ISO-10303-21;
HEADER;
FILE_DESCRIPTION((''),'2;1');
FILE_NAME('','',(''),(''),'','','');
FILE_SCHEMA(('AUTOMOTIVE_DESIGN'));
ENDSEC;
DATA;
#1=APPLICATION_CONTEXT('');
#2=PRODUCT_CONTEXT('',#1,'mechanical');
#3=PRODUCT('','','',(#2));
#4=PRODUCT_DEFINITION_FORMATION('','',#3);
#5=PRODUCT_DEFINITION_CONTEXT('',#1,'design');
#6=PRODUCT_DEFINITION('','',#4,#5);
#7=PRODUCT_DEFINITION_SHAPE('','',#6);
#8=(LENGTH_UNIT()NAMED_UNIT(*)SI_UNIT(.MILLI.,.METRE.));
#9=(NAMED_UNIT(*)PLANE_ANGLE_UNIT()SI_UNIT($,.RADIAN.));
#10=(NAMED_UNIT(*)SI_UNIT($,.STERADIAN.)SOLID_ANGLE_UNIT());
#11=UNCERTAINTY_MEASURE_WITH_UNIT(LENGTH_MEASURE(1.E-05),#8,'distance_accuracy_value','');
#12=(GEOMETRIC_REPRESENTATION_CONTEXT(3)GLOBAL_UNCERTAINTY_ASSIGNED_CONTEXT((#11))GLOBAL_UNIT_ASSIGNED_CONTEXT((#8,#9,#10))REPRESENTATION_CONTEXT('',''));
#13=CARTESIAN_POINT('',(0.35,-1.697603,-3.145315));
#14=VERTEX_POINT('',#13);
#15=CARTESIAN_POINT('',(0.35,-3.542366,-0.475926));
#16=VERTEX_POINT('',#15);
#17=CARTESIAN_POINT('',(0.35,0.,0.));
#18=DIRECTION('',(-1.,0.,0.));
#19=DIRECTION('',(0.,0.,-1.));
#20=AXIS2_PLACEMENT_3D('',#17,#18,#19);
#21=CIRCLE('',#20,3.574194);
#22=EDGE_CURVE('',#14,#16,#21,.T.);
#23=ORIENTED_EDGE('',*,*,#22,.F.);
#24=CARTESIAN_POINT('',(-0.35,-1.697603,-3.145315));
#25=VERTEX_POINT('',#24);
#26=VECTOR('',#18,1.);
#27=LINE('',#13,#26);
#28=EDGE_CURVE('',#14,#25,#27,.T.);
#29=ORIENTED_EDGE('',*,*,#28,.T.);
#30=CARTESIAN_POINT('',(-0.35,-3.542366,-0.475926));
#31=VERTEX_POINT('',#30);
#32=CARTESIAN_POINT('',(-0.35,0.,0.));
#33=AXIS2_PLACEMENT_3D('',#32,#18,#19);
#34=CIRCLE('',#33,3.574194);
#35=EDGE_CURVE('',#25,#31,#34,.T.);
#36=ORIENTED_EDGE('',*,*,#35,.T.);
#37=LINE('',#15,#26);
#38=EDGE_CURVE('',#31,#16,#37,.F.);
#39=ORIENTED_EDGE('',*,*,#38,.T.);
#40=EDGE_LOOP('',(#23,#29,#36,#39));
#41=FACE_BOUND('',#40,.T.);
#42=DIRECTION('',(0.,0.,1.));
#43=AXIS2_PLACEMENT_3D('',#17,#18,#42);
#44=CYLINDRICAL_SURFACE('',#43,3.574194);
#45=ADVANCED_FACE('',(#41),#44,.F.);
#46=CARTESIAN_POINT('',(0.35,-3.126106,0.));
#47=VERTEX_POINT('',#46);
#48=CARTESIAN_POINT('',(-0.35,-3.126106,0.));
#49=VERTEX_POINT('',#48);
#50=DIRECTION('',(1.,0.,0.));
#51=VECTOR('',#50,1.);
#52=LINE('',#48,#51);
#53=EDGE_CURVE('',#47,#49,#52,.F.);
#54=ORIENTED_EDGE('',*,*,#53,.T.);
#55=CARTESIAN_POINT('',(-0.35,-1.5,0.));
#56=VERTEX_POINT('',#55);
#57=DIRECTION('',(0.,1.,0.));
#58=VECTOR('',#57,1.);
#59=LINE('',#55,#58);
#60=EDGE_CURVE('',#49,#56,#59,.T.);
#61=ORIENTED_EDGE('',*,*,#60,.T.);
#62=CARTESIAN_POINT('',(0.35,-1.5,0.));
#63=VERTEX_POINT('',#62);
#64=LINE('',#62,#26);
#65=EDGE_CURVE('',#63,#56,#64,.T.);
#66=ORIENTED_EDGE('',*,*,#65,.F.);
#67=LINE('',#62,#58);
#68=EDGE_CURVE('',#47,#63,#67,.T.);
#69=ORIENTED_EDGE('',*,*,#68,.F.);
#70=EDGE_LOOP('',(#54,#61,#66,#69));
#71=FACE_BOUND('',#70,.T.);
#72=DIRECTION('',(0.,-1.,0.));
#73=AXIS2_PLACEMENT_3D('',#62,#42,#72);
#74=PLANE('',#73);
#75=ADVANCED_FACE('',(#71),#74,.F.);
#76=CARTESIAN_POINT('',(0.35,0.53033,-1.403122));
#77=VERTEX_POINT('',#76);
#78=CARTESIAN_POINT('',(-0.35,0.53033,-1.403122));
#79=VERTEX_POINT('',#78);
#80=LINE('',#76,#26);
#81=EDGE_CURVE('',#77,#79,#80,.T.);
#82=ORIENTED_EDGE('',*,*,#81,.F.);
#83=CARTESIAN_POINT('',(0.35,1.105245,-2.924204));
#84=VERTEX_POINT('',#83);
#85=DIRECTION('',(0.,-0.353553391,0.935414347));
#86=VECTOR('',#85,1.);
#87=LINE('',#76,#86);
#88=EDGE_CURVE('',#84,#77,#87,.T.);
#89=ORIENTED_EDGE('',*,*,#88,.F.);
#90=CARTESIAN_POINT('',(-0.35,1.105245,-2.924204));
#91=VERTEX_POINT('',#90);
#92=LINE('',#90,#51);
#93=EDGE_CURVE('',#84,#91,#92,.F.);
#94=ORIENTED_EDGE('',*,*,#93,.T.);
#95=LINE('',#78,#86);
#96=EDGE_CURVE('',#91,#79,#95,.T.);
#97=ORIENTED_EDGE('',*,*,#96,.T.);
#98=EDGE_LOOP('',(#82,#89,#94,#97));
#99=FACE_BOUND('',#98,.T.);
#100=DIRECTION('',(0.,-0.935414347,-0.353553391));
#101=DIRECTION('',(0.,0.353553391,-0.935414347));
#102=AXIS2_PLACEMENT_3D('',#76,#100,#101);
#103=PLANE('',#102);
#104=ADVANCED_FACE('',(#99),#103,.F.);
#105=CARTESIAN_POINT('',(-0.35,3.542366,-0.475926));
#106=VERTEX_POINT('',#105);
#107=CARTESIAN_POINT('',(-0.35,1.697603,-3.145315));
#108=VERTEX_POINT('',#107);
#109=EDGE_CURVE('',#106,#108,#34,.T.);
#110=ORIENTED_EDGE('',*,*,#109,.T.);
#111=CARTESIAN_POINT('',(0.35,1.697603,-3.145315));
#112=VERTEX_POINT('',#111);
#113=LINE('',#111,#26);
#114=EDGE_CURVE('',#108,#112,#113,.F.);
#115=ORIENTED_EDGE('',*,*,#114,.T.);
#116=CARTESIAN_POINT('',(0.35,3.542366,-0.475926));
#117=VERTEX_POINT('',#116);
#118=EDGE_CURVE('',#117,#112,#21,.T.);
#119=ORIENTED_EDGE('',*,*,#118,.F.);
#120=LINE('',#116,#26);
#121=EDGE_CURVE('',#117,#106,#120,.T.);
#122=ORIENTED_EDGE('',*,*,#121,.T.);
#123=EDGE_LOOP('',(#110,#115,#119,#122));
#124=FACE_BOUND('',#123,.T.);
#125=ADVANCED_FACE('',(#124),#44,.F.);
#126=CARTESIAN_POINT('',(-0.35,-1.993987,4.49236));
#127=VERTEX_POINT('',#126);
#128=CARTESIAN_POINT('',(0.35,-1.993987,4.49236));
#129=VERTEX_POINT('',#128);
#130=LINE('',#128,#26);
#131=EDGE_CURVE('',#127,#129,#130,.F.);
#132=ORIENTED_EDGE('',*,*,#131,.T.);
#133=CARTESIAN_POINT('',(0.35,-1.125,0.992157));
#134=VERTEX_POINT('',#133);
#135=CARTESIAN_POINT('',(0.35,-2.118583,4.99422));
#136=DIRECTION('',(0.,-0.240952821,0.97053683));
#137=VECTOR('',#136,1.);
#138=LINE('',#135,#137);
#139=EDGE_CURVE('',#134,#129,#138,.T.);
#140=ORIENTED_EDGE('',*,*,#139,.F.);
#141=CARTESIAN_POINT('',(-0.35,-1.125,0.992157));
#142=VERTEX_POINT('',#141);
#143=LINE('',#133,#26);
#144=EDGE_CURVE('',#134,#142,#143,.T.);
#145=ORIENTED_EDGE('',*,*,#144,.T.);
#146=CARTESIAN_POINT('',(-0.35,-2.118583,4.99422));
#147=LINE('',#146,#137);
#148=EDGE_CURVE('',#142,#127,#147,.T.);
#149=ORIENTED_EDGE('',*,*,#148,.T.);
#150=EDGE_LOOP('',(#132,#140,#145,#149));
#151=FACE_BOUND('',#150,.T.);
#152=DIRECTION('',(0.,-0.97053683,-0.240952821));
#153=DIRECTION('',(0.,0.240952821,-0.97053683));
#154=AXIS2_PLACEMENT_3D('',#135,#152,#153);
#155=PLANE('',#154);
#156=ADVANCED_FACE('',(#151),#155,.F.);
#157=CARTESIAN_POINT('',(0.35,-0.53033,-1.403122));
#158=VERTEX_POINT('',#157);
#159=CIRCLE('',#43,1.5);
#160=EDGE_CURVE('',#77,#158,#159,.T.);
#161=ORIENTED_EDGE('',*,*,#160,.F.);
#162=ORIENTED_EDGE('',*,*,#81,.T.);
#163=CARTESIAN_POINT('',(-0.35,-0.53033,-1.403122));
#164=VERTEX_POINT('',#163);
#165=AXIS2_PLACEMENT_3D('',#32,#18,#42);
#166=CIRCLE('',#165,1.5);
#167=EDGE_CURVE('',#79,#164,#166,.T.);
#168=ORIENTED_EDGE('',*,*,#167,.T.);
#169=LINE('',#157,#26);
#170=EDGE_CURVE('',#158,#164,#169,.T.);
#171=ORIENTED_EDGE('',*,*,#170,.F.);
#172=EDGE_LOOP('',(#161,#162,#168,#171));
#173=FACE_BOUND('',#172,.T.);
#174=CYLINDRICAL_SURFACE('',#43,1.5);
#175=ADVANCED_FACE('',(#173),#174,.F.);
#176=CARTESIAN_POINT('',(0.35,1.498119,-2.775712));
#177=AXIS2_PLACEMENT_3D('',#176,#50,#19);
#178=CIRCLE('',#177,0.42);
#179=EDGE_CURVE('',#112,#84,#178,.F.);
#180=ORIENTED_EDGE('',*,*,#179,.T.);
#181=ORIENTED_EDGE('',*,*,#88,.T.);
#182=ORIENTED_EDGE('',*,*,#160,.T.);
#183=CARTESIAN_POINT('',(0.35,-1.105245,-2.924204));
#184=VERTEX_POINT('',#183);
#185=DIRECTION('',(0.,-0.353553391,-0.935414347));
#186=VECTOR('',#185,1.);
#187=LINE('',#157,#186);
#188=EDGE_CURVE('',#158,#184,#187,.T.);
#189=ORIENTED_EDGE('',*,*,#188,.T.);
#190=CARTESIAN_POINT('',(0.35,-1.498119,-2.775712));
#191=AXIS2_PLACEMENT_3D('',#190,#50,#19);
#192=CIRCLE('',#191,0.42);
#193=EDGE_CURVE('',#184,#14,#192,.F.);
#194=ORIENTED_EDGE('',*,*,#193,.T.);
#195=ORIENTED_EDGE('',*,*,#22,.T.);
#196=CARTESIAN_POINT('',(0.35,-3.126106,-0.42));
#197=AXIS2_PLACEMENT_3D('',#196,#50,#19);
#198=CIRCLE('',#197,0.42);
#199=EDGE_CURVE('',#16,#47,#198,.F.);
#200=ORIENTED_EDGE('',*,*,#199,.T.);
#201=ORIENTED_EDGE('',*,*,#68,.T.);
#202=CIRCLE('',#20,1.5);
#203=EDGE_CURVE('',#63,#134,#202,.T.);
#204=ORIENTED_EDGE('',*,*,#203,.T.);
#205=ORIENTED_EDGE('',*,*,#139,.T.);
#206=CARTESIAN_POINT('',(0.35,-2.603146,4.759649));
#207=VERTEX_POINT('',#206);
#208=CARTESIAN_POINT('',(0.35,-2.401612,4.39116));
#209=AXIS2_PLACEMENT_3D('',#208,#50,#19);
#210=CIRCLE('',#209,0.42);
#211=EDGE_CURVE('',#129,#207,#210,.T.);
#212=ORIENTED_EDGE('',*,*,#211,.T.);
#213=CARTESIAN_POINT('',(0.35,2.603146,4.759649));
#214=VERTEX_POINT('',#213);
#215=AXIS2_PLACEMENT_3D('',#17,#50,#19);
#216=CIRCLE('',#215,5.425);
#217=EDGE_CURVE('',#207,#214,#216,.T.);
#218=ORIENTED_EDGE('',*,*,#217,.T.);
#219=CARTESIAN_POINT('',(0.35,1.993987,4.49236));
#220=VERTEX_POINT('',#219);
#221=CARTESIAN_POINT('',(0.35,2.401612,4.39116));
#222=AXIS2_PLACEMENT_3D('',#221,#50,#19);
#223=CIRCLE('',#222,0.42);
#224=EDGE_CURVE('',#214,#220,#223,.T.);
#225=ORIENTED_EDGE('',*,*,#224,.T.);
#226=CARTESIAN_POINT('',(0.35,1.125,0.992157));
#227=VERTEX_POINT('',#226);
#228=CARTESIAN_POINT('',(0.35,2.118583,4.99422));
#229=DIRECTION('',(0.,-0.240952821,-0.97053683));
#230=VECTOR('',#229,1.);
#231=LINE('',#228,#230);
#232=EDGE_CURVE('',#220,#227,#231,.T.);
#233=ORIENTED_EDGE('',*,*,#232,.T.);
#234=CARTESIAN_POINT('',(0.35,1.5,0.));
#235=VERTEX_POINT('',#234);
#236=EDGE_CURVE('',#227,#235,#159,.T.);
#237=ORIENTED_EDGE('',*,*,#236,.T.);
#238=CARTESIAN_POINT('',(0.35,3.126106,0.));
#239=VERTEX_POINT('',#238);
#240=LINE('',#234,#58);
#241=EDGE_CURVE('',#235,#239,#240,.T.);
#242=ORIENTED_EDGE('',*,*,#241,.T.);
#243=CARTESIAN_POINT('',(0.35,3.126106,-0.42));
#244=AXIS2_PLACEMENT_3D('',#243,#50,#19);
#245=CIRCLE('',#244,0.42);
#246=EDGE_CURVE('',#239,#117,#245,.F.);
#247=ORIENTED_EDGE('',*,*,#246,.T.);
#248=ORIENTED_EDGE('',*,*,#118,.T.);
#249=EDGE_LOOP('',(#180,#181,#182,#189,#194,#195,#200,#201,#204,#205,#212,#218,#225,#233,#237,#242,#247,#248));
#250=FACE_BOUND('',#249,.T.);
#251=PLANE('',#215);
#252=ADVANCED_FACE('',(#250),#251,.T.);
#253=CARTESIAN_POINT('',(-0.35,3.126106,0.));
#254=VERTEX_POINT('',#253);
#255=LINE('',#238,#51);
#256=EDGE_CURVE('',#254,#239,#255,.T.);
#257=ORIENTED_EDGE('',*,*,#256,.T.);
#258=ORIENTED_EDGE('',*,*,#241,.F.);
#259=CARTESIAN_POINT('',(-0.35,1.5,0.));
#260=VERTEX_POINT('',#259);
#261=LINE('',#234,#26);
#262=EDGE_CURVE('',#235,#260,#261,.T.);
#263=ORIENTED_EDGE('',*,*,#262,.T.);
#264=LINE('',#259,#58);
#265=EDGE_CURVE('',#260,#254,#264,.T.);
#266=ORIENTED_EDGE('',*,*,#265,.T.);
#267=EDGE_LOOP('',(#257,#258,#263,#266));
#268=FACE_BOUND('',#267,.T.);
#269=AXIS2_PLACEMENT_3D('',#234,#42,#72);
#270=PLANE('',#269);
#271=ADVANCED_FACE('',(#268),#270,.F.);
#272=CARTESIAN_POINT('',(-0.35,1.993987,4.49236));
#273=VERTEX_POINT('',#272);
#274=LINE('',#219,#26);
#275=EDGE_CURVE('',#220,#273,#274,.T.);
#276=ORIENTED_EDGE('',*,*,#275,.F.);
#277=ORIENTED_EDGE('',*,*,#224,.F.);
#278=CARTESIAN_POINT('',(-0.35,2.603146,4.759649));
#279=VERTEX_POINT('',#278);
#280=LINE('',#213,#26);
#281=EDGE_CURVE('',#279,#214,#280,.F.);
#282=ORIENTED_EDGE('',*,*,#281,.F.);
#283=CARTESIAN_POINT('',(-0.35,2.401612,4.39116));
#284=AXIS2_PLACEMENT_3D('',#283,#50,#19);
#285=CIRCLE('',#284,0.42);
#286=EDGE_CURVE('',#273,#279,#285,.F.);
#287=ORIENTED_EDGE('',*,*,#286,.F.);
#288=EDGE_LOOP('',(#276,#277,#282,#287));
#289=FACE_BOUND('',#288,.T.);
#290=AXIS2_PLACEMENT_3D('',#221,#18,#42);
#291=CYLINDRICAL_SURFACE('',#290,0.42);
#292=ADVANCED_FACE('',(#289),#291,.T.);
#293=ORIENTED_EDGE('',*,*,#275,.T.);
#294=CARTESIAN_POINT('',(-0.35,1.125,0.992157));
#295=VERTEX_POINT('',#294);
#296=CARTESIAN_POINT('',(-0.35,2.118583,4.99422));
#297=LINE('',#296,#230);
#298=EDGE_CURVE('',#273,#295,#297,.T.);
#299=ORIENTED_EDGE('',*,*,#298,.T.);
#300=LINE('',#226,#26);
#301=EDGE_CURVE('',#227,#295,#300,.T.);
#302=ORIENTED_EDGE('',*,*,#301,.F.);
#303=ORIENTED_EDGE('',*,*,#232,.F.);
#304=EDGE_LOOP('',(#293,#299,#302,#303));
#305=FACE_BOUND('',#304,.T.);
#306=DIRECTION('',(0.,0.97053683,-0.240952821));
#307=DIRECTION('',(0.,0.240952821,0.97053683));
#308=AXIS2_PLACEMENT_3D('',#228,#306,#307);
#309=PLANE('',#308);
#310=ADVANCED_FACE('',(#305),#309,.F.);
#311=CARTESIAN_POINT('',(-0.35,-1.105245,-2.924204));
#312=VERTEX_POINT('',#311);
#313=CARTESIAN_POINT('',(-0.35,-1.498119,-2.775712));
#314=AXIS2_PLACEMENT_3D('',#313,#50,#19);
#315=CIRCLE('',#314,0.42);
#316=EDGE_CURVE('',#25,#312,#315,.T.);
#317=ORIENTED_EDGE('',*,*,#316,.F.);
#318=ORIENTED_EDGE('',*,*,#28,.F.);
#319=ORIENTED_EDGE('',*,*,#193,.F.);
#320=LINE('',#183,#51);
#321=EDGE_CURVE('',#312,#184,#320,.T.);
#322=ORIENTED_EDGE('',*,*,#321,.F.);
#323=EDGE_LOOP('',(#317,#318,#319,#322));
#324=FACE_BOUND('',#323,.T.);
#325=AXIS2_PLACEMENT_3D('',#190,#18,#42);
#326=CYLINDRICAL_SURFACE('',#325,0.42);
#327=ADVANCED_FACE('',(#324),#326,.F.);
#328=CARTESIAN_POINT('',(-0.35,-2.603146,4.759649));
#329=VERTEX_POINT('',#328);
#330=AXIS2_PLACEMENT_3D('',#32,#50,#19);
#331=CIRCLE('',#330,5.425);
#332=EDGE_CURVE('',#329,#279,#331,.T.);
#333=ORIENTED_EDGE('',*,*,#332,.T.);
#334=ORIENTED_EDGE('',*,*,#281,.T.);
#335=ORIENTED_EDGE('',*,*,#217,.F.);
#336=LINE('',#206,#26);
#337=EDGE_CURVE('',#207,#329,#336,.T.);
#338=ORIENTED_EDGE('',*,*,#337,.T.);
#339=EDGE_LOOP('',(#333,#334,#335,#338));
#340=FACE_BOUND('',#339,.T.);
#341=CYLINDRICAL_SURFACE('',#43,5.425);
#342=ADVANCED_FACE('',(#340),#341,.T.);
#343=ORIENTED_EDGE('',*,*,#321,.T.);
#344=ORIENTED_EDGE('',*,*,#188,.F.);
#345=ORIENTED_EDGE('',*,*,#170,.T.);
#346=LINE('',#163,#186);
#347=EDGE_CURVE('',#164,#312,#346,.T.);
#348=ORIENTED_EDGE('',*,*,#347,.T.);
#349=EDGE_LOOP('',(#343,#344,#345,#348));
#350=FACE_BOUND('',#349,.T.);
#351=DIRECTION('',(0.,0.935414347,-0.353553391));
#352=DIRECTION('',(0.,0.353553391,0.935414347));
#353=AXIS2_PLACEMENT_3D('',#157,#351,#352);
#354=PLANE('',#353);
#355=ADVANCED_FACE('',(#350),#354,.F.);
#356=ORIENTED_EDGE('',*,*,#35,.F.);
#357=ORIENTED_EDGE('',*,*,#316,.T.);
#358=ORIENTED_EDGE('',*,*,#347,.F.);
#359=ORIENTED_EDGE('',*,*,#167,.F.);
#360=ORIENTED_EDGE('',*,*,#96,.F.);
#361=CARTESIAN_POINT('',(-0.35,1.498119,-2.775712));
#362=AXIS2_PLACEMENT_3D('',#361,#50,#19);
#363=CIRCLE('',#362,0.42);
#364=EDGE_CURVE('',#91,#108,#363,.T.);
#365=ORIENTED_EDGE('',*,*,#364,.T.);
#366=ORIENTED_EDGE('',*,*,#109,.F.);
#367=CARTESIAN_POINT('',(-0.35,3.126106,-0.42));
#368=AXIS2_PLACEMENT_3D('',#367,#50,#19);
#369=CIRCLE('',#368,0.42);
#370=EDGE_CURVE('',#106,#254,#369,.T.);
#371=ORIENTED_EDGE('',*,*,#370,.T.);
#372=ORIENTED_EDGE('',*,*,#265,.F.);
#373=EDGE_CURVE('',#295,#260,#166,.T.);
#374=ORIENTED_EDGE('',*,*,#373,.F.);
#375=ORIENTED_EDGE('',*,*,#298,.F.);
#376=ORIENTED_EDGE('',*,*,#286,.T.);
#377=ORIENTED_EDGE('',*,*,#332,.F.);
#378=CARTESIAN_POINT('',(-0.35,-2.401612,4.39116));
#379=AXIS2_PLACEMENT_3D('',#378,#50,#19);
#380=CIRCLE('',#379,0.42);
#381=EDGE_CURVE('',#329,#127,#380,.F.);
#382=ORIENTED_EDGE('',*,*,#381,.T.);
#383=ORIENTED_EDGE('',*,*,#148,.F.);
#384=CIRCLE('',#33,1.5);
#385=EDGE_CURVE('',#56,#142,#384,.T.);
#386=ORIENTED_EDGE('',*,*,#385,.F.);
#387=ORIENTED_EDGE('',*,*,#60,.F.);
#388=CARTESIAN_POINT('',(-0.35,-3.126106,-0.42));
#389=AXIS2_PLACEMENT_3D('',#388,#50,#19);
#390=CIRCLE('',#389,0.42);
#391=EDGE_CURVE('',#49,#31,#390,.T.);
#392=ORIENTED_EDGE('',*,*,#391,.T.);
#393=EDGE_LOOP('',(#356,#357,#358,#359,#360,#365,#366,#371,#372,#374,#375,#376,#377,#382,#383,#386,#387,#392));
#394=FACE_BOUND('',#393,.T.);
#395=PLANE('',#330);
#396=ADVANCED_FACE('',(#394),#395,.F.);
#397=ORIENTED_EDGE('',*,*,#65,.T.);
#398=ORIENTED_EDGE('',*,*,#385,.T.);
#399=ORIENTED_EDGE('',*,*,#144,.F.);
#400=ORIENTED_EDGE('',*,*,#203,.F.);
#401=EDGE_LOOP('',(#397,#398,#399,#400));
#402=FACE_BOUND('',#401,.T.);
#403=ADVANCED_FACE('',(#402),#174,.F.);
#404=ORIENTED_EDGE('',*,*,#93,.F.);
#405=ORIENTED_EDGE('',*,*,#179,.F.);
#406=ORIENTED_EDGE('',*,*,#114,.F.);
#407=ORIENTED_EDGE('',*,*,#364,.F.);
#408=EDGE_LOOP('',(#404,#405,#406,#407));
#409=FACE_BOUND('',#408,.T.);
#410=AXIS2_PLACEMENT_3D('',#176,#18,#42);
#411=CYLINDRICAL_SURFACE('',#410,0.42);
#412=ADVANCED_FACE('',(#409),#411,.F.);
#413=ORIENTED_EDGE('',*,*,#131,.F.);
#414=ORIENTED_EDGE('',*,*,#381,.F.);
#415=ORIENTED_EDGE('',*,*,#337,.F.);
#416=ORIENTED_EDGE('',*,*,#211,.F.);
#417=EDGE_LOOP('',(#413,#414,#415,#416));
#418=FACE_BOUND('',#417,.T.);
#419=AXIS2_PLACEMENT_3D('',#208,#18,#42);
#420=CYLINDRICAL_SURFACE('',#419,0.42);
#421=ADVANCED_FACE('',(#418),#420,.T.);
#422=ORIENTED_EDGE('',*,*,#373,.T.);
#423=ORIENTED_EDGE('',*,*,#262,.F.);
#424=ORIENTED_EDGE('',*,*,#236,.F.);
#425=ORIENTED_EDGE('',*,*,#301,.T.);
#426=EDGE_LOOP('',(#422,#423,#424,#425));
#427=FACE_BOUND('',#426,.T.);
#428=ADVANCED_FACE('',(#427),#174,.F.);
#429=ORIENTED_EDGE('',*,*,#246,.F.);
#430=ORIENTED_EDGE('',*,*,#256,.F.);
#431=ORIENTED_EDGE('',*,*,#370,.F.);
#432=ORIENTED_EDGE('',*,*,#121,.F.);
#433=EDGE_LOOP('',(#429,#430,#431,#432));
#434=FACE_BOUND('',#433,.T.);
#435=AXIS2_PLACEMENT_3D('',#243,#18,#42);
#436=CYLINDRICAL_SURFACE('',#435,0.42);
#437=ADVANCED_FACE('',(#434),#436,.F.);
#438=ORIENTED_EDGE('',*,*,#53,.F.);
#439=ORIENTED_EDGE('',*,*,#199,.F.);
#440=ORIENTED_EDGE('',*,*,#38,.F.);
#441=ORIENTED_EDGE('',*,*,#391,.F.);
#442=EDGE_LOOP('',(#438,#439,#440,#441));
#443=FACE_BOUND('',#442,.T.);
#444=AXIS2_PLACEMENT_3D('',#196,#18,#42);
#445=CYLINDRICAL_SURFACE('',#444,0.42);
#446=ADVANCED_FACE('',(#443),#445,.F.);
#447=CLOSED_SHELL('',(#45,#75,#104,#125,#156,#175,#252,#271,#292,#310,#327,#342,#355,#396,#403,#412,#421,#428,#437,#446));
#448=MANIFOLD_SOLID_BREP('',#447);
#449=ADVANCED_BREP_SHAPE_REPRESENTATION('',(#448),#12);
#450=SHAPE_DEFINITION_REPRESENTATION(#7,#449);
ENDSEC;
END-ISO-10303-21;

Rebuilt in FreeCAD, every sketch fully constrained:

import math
import FreeCAD as App
import Part
import Sketcher
from FreeCAD import Vector
Q = App.Units.Quantity


def edges_at(feature, points):
    """Names of the edges that pass closest to the given points."""
    edges = feature.Shape.Edges
    near = lambda p: min(range(len(edges)), key=lambda i: edges[i].distToShape(Part.Vertex(*p))[0])
    return sorted({f"Edge{near(p) + 1}" for p in points})

doc = App.newDocument("Part")
body = doc.addObject("PartDesign::Body", "Body")

sketch1 = doc.addObject("Sketcher::SketchObject", "Sketch")
body.addObject(sketch1)
sketch1.AttachmentSupport = (doc.YZ_Plane, [""])
sketch1.MapMode = "FlatFace"
sketch1.addGeometry(Part.LineSegment(Vector(-1.1, 1, 0), Vector(-2.1, 5, 0)), False)
sketch1.addGeometry(Part.ArcOfCircle(Part.Circle(Vector(0, 0, 0), Vector(0, 0, 1), 5.4), math.radians(113), math.radians(427)), False)
sketch1.addGeometry(Part.LineSegment(Vector(2.1, 5, 0), Vector(1.1, 1, 0)), False)
sketch1.addGeometry(Part.ArcOfCircle(Part.Circle(Vector(0, 0, 0), Vector(0, 0, 1), 1.5), math.radians(0), math.radians(41)), False)
sketch1.addGeometry(Part.LineSegment(Vector(1.5, 0, 0), Vector(3.6, 0, 0)), False)
sketch1.addGeometry(Part.ArcOfCircle(Part.Circle(Vector(0, 0, 0), Vector(0, 0, 1), 3.6), math.radians(-69), math.radians(0)), False)
sketch1.addGeometry(Part.LineSegment(Vector(1.3, -3.3, 0), Vector(0.5, -1.4, 0)), False)
sketch1.addGeometry(Part.ArcOfCircle(Part.Circle(Vector(0, 0, 0), Vector(0, 0, 1), 1.5), math.radians(-111), math.radians(-69)), False)
sketch1.addGeometry(Part.LineSegment(Vector(-0.5, -1.4, 0), Vector(-1.3, -3.3, 0)), False)
sketch1.addGeometry(Part.ArcOfCircle(Part.Circle(Vector(0, 0, 0), Vector(0, 0, 1), 3.6), math.radians(180), math.radians(249)), False)
sketch1.addGeometry(Part.LineSegment(Vector(-3.6, 0, 0), Vector(-1.5, 0, 0)), False)
sketch1.addGeometry(Part.ArcOfCircle(Part.Circle(Vector(0, 0, 0), Vector(0, 0, 1), 1.5), math.radians(139), math.radians(180)), False)
sketch1.addConstraint(Sketcher.Constraint("Coincident", 0, 2, 1, 1))
sketch1.addConstraint(Sketcher.Constraint("Coincident", 1, 2, 2, 1))
sketch1.addConstraint(Sketcher.Constraint("Coincident", 2, 2, 3, 2))
sketch1.addConstraint(Sketcher.Constraint("Coincident", 3, 1, 4, 1))
sketch1.addConstraint(Sketcher.Constraint("Coincident", 4, 2, 5, 2))
sketch1.addConstraint(Sketcher.Constraint("Coincident", 5, 1, 6, 1))
sketch1.addConstraint(Sketcher.Constraint("Coincident", 6, 2, 7, 2))
sketch1.addConstraint(Sketcher.Constraint("Coincident", 7, 1, 8, 1))
sketch1.addConstraint(Sketcher.Constraint("Coincident", 8, 2, 9, 2))
sketch1.addConstraint(Sketcher.Constraint("Coincident", 9, 1, 10, 1))
sketch1.addConstraint(Sketcher.Constraint("Coincident", 10, 2, 11, 2))
sketch1.addConstraint(Sketcher.Constraint("Coincident", 11, 1, 0, 1))
sketch1.addConstraint(Sketcher.Constraint("Horizontal", 4))
sketch1.addConstraint(Sketcher.Constraint("Horizontal", 10))
sketch1.addConstraint(Sketcher.Constraint("Coincident", 1, 3, -1, 1))
sketch1.addConstraint(Sketcher.Constraint("Coincident", 3, 3, -1, 1))
sketch1.addConstraint(Sketcher.Constraint("Coincident", 5, 3, -1, 1))
sketch1.addConstraint(Sketcher.Constraint("Coincident", 7, 3, -1, 1))
sketch1.addConstraint(Sketcher.Constraint("Coincident", 9, 3, -1, 1))
sketch1.addConstraint(Sketcher.Constraint("Coincident", 11, 3, -1, 1))
sketch1.addConstraint(Sketcher.Constraint("Equal", 3, 7))
sketch1.addConstraint(Sketcher.Constraint("Equal", 5, 9))
sketch1.addConstraint(Sketcher.Constraint("Equal", 7, 11))
sketch1.addConstraint(Sketcher.Constraint("PointOnObject", 3, 1, -1))
sketch1.addConstraint(Sketcher.Constraint("PointOnObject", 9, 1, -1))
sketch1.addConstraint(Sketcher.Constraint("Horizontal", 0, 2, 1, 2))
sketch1.addConstraint(Sketcher.Constraint("Horizontal", 6, 2, 7, 1))
sketch1.addConstraint(Sketcher.Constraint("Horizontal", 5, 1, 8, 2))
sketch1.addConstraint(Sketcher.Constraint("Horizontal", 2, 2, 11, 1))
sketch1.addConstraint(Sketcher.Constraint("Radius", 3, Q("1.5 mm")))
sketch1.addConstraint(Sketcher.Constraint("Radius", 1, Q("5.425 mm")))
sketch1.addConstraint(Sketcher.Constraint("DistanceX", -1, 1, 2, 2, Q("1.125 mm")))
sketch1.addConstraint(Sketcher.Constraint("Radius", 5, Q("3.574194 mm")))
sketch1.addConstraint(Sketcher.Constraint("DistanceX", 8, 2, 6, 2, Q("1.793998 mm")))
sketch1.addConstraint(Sketcher.Constraint("DistanceY", -1, 1, 0, 2, Q("4.99422 mm")))
sketch1.addConstraint(Sketcher.Constraint("DistanceX", -1, 1, 5, 1, Q("1.263668 mm")))
pad1 = doc.addObject("PartDesign::Pad", "Pad")
body.addObject(pad1)
pad1.Profile = sketch1
pad1.Length = 0.7
pad1.Midplane = True
doc.recompute()

fillet = doc.addObject("PartDesign::Fillet", "Fillet")
body.addObject(fillet)
fillet.Base = (pad1, edges_at(pad1, [
    (0, -2.119, 4.994),
    (0, -3.574, 0),
    (0, -1.264, -3.343),
    (0, 1.264, -3.343),
    (0, 3.574, 0),
    (0, 2.119, 4.994),
]))
fillet.Radius = 0.42

doc.recompute()
